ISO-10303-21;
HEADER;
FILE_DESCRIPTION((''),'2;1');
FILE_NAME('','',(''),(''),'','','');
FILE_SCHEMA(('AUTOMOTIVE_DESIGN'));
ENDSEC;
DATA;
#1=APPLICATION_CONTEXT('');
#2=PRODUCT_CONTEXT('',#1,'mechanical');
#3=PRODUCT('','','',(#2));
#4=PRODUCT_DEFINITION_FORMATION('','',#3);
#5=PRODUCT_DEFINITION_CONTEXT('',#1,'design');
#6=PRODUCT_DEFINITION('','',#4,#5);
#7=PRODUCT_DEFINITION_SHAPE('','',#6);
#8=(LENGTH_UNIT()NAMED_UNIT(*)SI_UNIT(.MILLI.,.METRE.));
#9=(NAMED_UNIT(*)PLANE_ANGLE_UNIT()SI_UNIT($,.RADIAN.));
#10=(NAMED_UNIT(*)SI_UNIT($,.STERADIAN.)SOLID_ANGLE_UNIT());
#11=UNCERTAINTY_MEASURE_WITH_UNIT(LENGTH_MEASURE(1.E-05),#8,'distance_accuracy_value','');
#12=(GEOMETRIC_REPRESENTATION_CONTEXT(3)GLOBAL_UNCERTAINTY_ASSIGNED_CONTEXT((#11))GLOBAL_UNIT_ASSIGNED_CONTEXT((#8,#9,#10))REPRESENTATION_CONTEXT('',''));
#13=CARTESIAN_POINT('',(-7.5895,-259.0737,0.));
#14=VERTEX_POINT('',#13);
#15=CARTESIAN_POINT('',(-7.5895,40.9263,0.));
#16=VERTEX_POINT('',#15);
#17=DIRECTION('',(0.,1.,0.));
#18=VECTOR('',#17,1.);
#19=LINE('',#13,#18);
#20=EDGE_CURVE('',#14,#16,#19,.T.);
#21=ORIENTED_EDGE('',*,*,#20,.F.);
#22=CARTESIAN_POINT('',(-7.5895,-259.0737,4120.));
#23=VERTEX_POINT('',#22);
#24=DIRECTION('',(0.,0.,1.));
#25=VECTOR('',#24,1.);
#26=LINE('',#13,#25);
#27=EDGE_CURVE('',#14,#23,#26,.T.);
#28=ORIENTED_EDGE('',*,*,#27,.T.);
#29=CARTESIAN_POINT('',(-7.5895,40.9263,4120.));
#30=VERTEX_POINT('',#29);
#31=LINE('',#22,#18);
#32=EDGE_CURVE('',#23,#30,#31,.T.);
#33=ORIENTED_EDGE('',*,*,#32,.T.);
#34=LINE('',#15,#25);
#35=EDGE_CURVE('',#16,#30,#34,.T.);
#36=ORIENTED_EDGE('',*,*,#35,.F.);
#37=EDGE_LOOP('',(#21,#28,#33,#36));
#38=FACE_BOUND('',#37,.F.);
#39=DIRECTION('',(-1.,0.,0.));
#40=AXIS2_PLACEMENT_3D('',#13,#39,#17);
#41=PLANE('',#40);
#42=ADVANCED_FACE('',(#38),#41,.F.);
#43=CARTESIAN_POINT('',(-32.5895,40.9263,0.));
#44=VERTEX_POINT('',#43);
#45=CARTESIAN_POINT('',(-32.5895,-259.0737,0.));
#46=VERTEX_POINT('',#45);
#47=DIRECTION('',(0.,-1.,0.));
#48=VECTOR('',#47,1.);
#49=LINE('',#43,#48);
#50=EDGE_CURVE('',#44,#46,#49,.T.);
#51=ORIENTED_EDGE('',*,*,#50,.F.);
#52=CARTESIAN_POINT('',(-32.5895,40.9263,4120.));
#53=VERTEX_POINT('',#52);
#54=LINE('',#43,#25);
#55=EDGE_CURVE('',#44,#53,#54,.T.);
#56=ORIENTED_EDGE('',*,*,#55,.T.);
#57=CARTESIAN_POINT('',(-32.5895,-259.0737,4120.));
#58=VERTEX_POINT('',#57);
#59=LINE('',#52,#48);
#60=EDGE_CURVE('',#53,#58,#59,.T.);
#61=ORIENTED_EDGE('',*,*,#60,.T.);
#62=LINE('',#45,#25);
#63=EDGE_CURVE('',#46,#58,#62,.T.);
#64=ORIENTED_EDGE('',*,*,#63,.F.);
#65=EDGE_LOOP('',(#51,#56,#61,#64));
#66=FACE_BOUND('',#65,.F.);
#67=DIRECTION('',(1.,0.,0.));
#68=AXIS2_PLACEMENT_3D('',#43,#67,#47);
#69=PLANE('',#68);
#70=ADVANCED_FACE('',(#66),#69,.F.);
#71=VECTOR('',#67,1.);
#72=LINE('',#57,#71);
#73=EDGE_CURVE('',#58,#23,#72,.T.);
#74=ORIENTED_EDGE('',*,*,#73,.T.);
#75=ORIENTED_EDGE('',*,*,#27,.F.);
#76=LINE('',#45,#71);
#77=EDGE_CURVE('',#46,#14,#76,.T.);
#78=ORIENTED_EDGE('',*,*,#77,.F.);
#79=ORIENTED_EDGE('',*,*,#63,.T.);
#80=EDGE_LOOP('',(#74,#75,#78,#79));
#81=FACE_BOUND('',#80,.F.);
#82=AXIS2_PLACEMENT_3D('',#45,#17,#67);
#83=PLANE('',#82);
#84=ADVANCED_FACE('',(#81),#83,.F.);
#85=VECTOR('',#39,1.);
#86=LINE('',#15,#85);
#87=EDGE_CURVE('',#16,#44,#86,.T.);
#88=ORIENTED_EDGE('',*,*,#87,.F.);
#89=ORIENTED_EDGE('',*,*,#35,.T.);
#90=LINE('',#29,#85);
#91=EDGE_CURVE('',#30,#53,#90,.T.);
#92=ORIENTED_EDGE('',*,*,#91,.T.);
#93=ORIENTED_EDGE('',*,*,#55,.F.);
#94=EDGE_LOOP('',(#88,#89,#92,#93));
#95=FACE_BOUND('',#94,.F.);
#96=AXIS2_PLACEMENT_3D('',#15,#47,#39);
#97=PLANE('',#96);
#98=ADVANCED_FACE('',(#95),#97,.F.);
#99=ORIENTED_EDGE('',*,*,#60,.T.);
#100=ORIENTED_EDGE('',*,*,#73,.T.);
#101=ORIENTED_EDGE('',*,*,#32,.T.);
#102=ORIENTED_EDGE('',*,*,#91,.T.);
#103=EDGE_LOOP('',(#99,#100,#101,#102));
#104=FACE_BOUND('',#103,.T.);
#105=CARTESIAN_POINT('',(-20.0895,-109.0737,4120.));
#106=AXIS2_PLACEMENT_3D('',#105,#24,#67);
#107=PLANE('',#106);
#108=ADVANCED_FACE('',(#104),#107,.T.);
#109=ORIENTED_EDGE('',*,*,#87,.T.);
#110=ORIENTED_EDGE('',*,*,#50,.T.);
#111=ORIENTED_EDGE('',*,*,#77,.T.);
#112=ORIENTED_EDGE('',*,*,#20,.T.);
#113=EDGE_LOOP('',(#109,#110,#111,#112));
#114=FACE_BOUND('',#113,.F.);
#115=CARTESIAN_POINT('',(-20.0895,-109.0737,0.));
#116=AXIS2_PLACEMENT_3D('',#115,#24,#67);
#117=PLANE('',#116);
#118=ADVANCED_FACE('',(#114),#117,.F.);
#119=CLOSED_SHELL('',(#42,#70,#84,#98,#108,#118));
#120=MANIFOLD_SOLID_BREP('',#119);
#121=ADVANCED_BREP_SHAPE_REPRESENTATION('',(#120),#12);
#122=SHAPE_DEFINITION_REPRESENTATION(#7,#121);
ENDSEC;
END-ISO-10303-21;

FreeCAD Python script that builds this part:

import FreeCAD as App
import Part
import Sketcher
Q = App.Units.Quantity


def add_polygon(sketch, points):
    """Adds a closed chain of lines whose ends are joined by coincident constraints."""
    first, n = sketch.GeometryCount, len(points)
    for a, b in zip(points, points[1:] + points[:1]):
        sketch.addGeometry(Part.LineSegment(App.Vector(*a, 0), App.Vector(*b, 0)), False)
    for i in range(n):
        sketch.addConstraint(Sketcher.Constraint("Coincident", first + i, 2, first + (i + 1) % n, 1))

doc = App.newDocument("Part")
params = doc.addObject("Spreadsheet::Sheet", "Params")
for row, (alias, value) in enumerate([
    ("sketch1_width", "25 mm"),
    ("sketch1_height", "300 mm"),
    ("pad1_length", "4120 mm"),
], start=1):
    params.set(f"A{row}", alias)
    params.set(f"B{row}", "=" + value)
    params.setAlias(f"B{row}", alias)

body = doc.addObject("PartDesign::Body", "Body")

# Sketch on XY plane
sketch1 = doc.addObject("Sketcher::SketchObject", "Sketch")
body.addObject(sketch1)
sketch1.AttachmentSupport = (doc.XY_Plane, [""])
sketch1.MapMode = "FlatFace"
add_polygon(sketch1, [(-32.5895, 40.9263), (-32.5895, -259.0737), (-7.5895, -259.0737), (-7.5895, 40.9263)])  # lines 0-3
sketch1.addConstraint([
    Sketcher.Constraint("Vertical", 0),
    Sketcher.Constraint("Horizontal", 1),
    Sketcher.Constraint("Vertical", 2),
    Sketcher.Constraint("Horizontal", 3),
    Sketcher.Constraint("DistanceX", 1, 1, 1, 2, Q("25 mm")),
    Sketcher.Constraint("DistanceY", 0, 2, 0, 1, Q("300 mm")),
    Sketcher.Constraint("DistanceX", 0, 2, -1, 1, Q("32.5895 mm")),
    Sketcher.Constraint("DistanceY", 0, 2, -1, 1, Q("259.0737 mm")),
])
sketch1.setExpression("Constraints[8]", "Params.sketch1_width")
sketch1.setExpression("Constraints[9]", "Params.sketch1_height")
pad1 = doc.addObject("PartDesign::Pad", "Pad")
body.addObject(pad1)
pad1.Profile = sketch1
pad1.setExpression("Length", "Params.pad1_length")

doc.recompute()
